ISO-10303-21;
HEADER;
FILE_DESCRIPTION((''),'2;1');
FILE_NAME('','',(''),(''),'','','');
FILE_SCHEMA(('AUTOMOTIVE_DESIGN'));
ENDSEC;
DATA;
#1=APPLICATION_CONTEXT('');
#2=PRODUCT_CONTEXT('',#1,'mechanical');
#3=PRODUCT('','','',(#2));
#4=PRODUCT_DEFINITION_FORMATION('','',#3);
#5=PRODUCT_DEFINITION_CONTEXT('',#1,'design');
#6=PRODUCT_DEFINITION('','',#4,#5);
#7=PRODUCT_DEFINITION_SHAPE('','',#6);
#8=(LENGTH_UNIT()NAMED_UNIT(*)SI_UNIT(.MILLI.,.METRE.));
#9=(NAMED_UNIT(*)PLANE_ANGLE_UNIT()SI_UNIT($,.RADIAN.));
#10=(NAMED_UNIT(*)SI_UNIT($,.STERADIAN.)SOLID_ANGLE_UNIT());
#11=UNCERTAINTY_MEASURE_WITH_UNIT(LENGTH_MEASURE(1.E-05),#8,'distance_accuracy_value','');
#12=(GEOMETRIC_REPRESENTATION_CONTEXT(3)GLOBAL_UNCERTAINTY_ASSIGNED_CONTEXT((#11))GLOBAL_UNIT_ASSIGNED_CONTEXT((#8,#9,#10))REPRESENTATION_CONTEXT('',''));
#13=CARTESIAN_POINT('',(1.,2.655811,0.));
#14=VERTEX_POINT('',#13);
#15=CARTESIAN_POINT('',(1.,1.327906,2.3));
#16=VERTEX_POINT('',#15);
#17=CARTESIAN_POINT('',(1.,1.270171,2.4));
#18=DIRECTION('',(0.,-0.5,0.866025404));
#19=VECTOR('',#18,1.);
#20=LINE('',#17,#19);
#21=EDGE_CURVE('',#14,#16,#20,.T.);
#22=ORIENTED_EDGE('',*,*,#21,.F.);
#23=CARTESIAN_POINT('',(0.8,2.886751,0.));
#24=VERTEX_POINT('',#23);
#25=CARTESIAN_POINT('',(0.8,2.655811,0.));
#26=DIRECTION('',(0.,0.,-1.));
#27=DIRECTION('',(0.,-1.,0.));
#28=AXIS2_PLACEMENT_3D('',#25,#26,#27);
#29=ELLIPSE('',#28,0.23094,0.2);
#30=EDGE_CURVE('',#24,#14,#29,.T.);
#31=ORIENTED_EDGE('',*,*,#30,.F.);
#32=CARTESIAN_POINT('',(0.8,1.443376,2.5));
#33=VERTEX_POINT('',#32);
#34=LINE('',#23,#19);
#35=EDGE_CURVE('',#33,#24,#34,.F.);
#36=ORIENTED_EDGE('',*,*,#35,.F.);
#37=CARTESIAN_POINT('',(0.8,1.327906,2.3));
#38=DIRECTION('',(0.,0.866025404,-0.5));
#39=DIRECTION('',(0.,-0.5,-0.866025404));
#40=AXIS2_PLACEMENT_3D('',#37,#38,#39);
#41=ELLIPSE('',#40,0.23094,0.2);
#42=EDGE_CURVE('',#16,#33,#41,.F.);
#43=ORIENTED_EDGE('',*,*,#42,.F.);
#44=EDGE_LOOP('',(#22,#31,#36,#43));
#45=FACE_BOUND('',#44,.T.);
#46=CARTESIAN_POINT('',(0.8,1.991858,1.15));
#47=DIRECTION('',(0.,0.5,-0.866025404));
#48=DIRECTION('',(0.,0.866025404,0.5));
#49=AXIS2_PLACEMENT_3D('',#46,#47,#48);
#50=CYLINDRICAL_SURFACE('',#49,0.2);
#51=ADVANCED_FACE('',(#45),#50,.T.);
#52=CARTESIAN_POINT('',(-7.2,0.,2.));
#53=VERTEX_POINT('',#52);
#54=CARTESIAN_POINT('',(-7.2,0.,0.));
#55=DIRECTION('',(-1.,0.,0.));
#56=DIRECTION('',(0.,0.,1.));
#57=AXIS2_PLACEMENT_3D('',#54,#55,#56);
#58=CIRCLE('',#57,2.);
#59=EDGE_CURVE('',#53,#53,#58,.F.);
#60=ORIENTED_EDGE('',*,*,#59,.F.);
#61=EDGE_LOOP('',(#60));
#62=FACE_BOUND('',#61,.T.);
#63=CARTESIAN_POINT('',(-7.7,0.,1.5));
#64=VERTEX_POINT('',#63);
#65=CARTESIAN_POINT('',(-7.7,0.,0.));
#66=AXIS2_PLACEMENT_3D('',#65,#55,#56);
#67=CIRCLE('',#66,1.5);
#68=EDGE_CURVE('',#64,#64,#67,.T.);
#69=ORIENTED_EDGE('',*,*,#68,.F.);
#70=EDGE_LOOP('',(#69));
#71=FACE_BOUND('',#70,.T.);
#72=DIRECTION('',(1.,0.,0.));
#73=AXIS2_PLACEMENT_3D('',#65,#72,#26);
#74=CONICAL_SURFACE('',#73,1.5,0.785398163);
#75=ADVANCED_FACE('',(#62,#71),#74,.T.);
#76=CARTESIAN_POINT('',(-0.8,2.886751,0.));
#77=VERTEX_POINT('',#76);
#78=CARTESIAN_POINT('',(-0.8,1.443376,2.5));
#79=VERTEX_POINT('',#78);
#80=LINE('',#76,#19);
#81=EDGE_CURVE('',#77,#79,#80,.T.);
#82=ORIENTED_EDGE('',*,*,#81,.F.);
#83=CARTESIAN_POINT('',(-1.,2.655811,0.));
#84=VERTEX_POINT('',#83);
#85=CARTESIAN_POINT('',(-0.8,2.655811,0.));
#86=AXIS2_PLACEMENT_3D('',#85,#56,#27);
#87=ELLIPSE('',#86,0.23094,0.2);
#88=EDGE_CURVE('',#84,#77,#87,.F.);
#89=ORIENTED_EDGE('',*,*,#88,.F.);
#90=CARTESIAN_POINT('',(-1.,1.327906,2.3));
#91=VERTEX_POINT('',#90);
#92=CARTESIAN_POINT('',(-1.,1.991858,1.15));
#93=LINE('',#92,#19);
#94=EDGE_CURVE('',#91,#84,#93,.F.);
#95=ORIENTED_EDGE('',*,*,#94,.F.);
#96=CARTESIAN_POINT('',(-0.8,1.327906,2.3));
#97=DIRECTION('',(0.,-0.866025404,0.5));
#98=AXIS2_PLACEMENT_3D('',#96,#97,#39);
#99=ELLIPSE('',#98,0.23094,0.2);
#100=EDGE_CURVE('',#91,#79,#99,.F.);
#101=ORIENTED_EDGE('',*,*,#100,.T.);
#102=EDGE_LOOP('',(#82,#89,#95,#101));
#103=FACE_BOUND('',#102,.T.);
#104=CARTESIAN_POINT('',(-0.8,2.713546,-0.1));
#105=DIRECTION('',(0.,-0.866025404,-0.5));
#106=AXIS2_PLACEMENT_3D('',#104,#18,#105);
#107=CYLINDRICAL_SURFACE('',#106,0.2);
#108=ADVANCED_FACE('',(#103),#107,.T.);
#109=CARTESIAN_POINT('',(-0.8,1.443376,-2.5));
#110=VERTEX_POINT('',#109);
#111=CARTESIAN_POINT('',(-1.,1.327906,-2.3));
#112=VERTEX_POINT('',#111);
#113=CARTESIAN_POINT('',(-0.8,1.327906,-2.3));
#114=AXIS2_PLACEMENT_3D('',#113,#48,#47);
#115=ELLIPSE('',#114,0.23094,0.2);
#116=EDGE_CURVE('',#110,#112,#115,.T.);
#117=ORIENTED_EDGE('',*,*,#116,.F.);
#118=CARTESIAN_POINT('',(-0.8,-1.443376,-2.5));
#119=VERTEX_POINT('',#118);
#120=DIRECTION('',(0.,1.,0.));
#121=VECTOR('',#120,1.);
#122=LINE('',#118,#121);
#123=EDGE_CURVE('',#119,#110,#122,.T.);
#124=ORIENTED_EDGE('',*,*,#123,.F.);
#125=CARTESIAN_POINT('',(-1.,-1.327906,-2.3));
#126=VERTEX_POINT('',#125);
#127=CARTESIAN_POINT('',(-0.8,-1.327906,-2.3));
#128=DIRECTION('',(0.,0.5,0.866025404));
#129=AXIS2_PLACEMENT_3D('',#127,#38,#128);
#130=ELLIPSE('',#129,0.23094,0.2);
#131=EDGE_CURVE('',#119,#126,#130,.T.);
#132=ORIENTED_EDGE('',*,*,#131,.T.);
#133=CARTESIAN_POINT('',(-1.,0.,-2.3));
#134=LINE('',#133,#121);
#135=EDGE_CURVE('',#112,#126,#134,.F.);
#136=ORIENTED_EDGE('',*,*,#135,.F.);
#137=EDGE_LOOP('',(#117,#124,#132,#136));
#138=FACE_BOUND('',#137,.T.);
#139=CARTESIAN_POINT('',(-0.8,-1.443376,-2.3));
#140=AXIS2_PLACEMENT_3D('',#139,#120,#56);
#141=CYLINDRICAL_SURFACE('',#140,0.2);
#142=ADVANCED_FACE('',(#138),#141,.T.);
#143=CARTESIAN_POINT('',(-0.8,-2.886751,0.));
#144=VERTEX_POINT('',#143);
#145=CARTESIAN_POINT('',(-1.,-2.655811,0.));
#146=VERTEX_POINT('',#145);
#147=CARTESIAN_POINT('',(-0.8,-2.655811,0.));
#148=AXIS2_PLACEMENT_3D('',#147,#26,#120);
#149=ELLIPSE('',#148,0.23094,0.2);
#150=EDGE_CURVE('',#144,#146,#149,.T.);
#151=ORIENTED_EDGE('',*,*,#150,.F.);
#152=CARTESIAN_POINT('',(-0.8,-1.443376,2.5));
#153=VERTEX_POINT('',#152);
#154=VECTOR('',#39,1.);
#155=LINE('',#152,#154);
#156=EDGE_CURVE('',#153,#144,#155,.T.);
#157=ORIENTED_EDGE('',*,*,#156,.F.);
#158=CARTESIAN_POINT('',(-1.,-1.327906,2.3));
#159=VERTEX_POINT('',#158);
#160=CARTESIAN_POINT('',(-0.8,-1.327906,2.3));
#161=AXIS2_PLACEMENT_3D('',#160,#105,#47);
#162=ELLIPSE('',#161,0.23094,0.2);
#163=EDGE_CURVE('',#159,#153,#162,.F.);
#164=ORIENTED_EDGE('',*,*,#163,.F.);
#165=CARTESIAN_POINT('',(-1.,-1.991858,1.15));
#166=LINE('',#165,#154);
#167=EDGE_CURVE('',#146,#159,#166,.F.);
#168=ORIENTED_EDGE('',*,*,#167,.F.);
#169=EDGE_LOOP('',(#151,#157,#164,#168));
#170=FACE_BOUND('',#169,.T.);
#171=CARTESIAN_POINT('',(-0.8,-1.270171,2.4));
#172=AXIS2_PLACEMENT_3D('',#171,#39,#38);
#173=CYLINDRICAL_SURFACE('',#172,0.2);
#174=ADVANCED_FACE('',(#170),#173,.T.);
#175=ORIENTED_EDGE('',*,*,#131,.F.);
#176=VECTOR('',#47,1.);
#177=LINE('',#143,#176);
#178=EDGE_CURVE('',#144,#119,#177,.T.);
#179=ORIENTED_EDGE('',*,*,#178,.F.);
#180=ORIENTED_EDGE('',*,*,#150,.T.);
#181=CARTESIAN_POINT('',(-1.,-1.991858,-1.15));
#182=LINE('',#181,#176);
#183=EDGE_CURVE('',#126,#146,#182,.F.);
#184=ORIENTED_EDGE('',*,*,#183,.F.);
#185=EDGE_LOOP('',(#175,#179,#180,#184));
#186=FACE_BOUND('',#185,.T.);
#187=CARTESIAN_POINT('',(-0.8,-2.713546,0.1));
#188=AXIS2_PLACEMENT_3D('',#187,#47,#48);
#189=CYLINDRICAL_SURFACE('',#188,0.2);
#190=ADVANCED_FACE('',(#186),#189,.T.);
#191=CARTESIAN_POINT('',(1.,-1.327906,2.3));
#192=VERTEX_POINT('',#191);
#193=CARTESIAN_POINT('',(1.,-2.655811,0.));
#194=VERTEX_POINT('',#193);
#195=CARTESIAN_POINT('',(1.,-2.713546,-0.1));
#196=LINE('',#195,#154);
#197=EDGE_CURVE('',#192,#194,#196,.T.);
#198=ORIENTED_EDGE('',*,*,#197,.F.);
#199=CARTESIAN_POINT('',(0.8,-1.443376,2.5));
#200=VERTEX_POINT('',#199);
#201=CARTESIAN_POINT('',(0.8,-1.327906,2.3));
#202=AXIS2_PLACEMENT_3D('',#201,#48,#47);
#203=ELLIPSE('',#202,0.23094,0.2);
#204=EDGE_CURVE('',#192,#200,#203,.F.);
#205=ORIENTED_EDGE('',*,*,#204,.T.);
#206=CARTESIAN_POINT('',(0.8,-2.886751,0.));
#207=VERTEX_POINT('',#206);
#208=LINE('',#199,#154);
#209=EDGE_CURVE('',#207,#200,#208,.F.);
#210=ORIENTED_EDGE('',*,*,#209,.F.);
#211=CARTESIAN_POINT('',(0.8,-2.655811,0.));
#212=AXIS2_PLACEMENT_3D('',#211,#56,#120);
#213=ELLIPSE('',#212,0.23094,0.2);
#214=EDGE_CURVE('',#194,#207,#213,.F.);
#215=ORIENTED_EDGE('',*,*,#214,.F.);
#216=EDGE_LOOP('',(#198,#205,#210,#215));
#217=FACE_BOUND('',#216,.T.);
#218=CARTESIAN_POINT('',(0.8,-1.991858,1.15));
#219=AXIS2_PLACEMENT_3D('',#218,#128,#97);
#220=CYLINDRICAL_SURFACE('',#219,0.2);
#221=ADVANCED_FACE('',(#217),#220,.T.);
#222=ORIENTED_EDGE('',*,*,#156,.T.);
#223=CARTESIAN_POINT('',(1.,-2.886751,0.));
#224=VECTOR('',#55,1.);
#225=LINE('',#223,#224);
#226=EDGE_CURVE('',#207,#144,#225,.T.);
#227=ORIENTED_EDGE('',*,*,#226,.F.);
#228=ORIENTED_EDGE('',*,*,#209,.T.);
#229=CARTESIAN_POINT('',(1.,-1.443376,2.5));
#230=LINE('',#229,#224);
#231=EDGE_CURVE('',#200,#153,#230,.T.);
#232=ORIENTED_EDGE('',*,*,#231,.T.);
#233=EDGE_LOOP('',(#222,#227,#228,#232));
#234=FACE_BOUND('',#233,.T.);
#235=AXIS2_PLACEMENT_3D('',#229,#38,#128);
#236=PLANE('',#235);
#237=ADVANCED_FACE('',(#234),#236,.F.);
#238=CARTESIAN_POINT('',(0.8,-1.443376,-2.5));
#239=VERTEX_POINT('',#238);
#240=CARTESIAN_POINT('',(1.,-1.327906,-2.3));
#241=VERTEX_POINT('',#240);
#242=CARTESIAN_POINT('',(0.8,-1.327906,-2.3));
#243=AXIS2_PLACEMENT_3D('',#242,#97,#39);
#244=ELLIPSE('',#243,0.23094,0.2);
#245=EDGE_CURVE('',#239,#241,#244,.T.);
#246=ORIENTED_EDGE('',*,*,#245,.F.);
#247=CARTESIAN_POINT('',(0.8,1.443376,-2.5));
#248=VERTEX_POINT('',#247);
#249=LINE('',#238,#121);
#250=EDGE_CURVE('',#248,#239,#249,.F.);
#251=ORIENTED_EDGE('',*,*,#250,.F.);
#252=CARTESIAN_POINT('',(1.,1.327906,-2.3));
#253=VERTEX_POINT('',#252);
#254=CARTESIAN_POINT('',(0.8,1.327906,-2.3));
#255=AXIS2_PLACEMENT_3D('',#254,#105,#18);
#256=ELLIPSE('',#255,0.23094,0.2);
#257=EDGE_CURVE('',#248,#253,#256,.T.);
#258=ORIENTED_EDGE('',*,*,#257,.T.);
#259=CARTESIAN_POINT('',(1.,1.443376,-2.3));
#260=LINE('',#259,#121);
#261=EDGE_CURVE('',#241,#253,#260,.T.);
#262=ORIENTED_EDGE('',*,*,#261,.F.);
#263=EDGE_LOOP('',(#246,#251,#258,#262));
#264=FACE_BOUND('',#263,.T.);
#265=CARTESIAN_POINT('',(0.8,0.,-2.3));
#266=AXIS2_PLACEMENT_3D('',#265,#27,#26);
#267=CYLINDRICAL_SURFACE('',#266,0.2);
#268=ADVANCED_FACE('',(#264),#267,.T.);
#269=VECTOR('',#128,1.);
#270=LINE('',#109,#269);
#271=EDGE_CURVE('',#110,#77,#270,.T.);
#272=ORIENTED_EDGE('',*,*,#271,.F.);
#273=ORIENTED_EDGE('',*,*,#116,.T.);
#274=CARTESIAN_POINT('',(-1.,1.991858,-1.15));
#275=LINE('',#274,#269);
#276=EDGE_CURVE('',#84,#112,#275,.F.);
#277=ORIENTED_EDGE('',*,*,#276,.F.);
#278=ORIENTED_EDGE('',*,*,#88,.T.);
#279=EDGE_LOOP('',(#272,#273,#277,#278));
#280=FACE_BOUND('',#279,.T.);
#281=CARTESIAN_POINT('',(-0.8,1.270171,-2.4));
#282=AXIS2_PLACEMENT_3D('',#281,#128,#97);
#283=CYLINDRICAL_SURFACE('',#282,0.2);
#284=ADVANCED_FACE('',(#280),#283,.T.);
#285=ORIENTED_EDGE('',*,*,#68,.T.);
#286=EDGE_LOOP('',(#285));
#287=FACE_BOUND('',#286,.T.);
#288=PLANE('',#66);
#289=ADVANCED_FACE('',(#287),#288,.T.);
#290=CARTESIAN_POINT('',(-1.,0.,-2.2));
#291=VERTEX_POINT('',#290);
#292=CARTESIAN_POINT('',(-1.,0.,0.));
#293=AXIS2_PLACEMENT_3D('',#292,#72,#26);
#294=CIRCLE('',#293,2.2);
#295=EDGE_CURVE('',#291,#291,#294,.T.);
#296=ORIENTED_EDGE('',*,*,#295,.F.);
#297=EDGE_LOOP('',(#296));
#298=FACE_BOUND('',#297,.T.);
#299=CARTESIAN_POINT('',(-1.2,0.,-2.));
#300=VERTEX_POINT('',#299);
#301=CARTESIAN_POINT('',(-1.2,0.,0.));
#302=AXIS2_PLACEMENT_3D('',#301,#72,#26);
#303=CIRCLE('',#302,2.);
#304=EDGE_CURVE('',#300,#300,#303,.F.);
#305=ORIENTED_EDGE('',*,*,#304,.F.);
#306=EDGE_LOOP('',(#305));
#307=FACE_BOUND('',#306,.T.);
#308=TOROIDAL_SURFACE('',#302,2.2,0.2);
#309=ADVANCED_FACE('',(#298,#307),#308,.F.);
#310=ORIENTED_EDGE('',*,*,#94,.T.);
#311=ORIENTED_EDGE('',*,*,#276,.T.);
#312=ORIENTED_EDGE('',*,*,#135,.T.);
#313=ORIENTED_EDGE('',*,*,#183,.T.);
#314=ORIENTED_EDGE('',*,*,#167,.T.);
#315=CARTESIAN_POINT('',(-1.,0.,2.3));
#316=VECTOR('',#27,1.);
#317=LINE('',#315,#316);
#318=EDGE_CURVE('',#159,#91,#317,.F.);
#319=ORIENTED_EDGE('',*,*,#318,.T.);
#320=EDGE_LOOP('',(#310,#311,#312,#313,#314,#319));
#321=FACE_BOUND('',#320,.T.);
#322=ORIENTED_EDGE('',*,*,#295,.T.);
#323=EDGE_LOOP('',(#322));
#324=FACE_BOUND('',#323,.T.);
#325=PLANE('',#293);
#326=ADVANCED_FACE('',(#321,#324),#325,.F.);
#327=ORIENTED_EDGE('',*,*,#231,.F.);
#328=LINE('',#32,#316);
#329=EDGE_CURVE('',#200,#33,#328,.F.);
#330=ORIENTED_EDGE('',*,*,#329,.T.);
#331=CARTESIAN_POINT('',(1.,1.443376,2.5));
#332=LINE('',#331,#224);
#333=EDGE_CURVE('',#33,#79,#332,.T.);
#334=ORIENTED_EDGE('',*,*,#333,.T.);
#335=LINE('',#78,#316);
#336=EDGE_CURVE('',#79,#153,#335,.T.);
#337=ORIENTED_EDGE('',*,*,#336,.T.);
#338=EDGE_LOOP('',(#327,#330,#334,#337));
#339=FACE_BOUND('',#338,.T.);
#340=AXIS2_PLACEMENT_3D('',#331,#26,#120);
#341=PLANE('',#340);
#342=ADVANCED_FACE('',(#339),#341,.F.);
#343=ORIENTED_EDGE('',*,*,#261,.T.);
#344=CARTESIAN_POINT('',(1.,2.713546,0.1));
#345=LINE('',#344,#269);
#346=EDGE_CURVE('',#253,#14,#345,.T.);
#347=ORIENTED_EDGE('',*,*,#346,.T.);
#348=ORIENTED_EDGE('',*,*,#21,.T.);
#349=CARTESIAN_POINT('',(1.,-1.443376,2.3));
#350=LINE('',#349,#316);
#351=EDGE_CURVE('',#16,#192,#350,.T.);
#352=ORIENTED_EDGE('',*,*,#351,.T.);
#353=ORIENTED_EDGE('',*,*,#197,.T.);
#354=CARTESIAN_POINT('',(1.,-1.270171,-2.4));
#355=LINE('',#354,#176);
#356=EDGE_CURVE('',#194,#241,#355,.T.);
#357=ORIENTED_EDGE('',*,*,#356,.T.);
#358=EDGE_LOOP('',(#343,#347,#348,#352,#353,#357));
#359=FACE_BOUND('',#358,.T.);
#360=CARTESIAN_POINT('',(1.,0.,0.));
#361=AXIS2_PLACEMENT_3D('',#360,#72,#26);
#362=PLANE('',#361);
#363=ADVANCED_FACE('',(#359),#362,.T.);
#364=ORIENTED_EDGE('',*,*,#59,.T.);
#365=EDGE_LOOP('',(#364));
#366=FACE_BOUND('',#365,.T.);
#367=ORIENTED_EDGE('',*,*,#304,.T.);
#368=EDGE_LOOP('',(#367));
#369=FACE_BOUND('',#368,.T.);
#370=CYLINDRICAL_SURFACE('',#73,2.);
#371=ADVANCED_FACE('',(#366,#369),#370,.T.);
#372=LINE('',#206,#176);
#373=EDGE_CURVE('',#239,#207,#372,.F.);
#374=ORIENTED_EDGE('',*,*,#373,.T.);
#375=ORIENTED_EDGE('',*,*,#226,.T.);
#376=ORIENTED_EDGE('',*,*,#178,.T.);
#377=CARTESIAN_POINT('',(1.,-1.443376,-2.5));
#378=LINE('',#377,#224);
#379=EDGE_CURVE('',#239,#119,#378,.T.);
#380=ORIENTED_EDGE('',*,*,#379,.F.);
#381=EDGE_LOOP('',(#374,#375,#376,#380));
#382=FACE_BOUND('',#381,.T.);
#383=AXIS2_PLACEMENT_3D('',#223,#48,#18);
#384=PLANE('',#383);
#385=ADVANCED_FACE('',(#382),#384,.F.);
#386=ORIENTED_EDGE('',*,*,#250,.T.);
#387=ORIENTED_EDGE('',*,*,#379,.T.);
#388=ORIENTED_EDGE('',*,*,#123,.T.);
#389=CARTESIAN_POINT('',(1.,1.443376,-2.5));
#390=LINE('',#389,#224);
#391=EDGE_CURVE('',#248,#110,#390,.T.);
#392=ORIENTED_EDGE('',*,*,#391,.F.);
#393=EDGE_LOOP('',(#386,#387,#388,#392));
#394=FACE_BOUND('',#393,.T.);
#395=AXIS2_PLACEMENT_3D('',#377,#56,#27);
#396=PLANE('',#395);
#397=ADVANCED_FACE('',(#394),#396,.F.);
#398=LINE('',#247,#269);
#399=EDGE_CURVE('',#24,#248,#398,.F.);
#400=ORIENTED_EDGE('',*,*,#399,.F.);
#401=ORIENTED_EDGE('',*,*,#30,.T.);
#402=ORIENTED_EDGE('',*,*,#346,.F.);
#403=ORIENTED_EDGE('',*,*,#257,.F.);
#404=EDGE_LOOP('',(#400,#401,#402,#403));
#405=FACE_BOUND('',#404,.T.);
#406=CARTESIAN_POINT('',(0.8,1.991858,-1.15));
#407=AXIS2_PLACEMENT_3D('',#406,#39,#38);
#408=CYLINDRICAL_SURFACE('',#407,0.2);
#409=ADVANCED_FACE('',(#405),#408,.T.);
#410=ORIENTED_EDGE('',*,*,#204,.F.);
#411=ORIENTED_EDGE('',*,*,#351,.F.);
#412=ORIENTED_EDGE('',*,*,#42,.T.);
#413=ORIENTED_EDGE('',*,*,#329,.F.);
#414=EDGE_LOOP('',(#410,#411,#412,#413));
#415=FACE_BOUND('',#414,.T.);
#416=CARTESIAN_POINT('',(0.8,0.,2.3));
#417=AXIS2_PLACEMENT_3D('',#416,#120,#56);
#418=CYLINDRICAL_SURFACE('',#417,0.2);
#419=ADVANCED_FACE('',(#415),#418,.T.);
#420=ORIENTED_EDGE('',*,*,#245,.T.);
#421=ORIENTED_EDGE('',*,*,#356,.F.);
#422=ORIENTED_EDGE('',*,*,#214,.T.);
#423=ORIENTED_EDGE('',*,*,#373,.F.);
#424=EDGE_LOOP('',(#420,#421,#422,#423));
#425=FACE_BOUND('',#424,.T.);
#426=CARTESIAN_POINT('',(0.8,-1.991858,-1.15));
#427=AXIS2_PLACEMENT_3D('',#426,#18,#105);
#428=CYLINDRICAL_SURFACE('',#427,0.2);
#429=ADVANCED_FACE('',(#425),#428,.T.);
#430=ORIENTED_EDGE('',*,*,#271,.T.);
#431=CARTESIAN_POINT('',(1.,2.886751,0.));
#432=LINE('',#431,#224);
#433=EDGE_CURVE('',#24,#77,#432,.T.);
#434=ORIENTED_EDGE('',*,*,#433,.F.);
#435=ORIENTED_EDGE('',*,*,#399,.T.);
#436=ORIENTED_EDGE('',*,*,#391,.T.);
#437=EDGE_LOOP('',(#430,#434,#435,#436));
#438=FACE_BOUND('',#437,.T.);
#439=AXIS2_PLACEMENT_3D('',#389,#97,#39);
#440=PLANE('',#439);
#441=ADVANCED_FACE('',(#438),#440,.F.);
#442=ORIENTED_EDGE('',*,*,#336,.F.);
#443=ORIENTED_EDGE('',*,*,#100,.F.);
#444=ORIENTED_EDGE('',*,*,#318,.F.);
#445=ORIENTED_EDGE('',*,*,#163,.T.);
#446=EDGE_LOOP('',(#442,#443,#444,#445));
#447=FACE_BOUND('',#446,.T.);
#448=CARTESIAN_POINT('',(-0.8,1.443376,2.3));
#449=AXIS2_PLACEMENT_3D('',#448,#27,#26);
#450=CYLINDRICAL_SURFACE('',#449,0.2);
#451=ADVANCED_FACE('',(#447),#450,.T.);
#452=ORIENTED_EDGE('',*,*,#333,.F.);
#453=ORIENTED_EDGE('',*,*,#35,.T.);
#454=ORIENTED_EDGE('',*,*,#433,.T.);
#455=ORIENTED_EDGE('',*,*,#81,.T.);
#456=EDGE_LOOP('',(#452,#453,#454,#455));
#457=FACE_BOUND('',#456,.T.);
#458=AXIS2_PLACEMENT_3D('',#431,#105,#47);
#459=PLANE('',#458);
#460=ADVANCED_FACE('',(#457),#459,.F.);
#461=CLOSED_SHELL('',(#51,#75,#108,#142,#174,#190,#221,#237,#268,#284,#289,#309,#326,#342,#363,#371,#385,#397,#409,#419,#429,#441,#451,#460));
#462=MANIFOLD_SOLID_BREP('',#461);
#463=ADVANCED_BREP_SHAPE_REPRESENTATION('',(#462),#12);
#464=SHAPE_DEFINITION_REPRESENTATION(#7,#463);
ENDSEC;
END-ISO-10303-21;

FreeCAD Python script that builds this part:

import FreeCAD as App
import Part
import Sketcher

V = App.Vector
Q = App.Units.Quantity


def edges_at(feature, points):
    """Names of the edges that pass closest to the given points."""
    edges = feature.Shape.Edges
    near = lambda p: min(range(len(edges)), key=lambda i: edges[i].distToShape(Part.Vertex(*p))[0])
    return sorted({f"Edge{near(p) + 1}" for p in points})

doc = App.newDocument("Part")
body = doc.addObject("PartDesign::Body", "Body")

# Sketch on YZ plane
sketch1 = doc.addObject("Sketcher::SketchObject", "Sketch")
body.addObject(sketch1)
sketch1.AttachmentSupport = (doc.YZ_Plane, [""])
sketch1.MapMode = "FlatFace"
sketch1.addGeometry([
    Part.LineSegment(V(1.443376, -2.5, 0), V(2.886751, 0, 0)),  # 0
    Part.LineSegment(V(2.886751, 0, 0), V(1.443376, 2.5, 0)),  # 1
    Part.LineSegment(V(1.443376, 2.5, 0), V(-1.443376, 2.5, 0)),  # 2
    Part.LineSegment(V(-1.443376, 2.5, 0), V(-2.886751, 0, 0)),  # 3
    Part.LineSegment(V(-2.886751, 0, 0), V(-1.443376, -2.5, 0)),  # 4
    Part.LineSegment(V(-1.443376, -2.5, 0), V(1.443376, -2.5, 0)),  # 5
], False)
sketch1.addConstraint([
    Sketcher.Constraint("Coincident", 0, 2, 1, 1),
    Sketcher.Constraint("Coincident", 1, 2, 2, 1),
    Sketcher.Constraint("Coincident", 2, 2, 3, 1),
    Sketcher.Constraint("Coincident", 3, 2, 4, 1),
    Sketcher.Constraint("Coincident", 4, 2, 5, 1),
    Sketcher.Constraint("Coincident", 5, 2, 0, 1),
    Sketcher.Constraint("Horizontal", 2),
    Sketcher.Constraint("Horizontal", 5),
    Sketcher.Constraint("Symmetric", 0, 2, 3, 2, -1, 1),
    Sketcher.Constraint("Symmetric", 1, 2, 4, 2, -1, 1),
    Sketcher.Constraint("PointOnObject", 0, 2, -1),
    Sketcher.Constraint("Parallel", 0, 3),
    Sketcher.Constraint("Vertical", 2, 2, 4, 2),
    Sketcher.Constraint("Angle", 0, Q("60 deg")),
    Sketcher.Constraint("DistanceY", 4, 2, 2, 2, Q("5 mm")),
    Sketcher.Constraint("DistanceX", 2, 2, 2, 1, Q("2.886751 mm")),
])
pad1 = doc.addObject("PartDesign::Pad", "Pad")
body.addObject(pad1)
pad1.Profile = sketch1
pad1.Length = 2
pad1.Midplane = True
doc.recompute()

fillet = doc.addObject("PartDesign::Fillet", "Fillet")
body.addObject(fillet)
fillet.Base = (pad1, edges_at(pad1, [
    (1, 2.165, 1.25),
    (1, 0, 2.5),
    (1, -2.165, 1.25),
    (1, -2.165, -1.25),
    (1, 0, -2.5),
    (-1, -2.165, -1.25),
    (-1, -2.165, 1.25),
    (-1, 0, 2.5),
    (-1, 2.165, 1.25),
    (-1, 2.165, -1.25),
    (-1, 0, -2.5),
    (1, 2.165, -1.25),
]))
fillet.Radius = 0.2

# Sketch on YZ plane
sketch2 = doc.addObject("Sketcher::SketchObject", "Sketch001")
body.addObject(sketch2)
sketch2.AttachmentSupport = (doc.YZ_Plane, [""])
sketch2.MapMode = "FlatFace"
sketch2.AttachmentOffset = App.Placement(V(0, 0, -1), App.Rotation())
sketch2.addGeometry(Part.Circle(V(0, 0, 0), V(0, 0, 1), 2), False)
sketch2.addConstraint([
    Sketcher.Constraint("Coincident", 0, 3, -1, 1),
    Sketcher.Constraint("Diameter", 0, Q("4 mm")),
])
pad2 = doc.addObject("PartDesign::Pad", "Pad001")
body.addObject(pad2)
pad2.Profile = sketch2
pad2.Length = 6.7
pad2.Reversed = True
doc.recompute()

chamfer = doc.addObject("PartDesign::Chamfer", "Chamfer")
body.addObject(chamfer)
chamfer.Base = (pad2, edges_at(pad2, [(-7.7, 0, 2)]))
chamfer.Size = 0.5
doc.recompute()

fillet2 = doc.addObject("PartDesign::Fillet", "Fillet001")
body.addObject(fillet2)
fillet2.Base = (chamfer, edges_at(chamfer, [(-1, 0, 2)]))
fillet2.Radius = 0.2

doc.recompute()
